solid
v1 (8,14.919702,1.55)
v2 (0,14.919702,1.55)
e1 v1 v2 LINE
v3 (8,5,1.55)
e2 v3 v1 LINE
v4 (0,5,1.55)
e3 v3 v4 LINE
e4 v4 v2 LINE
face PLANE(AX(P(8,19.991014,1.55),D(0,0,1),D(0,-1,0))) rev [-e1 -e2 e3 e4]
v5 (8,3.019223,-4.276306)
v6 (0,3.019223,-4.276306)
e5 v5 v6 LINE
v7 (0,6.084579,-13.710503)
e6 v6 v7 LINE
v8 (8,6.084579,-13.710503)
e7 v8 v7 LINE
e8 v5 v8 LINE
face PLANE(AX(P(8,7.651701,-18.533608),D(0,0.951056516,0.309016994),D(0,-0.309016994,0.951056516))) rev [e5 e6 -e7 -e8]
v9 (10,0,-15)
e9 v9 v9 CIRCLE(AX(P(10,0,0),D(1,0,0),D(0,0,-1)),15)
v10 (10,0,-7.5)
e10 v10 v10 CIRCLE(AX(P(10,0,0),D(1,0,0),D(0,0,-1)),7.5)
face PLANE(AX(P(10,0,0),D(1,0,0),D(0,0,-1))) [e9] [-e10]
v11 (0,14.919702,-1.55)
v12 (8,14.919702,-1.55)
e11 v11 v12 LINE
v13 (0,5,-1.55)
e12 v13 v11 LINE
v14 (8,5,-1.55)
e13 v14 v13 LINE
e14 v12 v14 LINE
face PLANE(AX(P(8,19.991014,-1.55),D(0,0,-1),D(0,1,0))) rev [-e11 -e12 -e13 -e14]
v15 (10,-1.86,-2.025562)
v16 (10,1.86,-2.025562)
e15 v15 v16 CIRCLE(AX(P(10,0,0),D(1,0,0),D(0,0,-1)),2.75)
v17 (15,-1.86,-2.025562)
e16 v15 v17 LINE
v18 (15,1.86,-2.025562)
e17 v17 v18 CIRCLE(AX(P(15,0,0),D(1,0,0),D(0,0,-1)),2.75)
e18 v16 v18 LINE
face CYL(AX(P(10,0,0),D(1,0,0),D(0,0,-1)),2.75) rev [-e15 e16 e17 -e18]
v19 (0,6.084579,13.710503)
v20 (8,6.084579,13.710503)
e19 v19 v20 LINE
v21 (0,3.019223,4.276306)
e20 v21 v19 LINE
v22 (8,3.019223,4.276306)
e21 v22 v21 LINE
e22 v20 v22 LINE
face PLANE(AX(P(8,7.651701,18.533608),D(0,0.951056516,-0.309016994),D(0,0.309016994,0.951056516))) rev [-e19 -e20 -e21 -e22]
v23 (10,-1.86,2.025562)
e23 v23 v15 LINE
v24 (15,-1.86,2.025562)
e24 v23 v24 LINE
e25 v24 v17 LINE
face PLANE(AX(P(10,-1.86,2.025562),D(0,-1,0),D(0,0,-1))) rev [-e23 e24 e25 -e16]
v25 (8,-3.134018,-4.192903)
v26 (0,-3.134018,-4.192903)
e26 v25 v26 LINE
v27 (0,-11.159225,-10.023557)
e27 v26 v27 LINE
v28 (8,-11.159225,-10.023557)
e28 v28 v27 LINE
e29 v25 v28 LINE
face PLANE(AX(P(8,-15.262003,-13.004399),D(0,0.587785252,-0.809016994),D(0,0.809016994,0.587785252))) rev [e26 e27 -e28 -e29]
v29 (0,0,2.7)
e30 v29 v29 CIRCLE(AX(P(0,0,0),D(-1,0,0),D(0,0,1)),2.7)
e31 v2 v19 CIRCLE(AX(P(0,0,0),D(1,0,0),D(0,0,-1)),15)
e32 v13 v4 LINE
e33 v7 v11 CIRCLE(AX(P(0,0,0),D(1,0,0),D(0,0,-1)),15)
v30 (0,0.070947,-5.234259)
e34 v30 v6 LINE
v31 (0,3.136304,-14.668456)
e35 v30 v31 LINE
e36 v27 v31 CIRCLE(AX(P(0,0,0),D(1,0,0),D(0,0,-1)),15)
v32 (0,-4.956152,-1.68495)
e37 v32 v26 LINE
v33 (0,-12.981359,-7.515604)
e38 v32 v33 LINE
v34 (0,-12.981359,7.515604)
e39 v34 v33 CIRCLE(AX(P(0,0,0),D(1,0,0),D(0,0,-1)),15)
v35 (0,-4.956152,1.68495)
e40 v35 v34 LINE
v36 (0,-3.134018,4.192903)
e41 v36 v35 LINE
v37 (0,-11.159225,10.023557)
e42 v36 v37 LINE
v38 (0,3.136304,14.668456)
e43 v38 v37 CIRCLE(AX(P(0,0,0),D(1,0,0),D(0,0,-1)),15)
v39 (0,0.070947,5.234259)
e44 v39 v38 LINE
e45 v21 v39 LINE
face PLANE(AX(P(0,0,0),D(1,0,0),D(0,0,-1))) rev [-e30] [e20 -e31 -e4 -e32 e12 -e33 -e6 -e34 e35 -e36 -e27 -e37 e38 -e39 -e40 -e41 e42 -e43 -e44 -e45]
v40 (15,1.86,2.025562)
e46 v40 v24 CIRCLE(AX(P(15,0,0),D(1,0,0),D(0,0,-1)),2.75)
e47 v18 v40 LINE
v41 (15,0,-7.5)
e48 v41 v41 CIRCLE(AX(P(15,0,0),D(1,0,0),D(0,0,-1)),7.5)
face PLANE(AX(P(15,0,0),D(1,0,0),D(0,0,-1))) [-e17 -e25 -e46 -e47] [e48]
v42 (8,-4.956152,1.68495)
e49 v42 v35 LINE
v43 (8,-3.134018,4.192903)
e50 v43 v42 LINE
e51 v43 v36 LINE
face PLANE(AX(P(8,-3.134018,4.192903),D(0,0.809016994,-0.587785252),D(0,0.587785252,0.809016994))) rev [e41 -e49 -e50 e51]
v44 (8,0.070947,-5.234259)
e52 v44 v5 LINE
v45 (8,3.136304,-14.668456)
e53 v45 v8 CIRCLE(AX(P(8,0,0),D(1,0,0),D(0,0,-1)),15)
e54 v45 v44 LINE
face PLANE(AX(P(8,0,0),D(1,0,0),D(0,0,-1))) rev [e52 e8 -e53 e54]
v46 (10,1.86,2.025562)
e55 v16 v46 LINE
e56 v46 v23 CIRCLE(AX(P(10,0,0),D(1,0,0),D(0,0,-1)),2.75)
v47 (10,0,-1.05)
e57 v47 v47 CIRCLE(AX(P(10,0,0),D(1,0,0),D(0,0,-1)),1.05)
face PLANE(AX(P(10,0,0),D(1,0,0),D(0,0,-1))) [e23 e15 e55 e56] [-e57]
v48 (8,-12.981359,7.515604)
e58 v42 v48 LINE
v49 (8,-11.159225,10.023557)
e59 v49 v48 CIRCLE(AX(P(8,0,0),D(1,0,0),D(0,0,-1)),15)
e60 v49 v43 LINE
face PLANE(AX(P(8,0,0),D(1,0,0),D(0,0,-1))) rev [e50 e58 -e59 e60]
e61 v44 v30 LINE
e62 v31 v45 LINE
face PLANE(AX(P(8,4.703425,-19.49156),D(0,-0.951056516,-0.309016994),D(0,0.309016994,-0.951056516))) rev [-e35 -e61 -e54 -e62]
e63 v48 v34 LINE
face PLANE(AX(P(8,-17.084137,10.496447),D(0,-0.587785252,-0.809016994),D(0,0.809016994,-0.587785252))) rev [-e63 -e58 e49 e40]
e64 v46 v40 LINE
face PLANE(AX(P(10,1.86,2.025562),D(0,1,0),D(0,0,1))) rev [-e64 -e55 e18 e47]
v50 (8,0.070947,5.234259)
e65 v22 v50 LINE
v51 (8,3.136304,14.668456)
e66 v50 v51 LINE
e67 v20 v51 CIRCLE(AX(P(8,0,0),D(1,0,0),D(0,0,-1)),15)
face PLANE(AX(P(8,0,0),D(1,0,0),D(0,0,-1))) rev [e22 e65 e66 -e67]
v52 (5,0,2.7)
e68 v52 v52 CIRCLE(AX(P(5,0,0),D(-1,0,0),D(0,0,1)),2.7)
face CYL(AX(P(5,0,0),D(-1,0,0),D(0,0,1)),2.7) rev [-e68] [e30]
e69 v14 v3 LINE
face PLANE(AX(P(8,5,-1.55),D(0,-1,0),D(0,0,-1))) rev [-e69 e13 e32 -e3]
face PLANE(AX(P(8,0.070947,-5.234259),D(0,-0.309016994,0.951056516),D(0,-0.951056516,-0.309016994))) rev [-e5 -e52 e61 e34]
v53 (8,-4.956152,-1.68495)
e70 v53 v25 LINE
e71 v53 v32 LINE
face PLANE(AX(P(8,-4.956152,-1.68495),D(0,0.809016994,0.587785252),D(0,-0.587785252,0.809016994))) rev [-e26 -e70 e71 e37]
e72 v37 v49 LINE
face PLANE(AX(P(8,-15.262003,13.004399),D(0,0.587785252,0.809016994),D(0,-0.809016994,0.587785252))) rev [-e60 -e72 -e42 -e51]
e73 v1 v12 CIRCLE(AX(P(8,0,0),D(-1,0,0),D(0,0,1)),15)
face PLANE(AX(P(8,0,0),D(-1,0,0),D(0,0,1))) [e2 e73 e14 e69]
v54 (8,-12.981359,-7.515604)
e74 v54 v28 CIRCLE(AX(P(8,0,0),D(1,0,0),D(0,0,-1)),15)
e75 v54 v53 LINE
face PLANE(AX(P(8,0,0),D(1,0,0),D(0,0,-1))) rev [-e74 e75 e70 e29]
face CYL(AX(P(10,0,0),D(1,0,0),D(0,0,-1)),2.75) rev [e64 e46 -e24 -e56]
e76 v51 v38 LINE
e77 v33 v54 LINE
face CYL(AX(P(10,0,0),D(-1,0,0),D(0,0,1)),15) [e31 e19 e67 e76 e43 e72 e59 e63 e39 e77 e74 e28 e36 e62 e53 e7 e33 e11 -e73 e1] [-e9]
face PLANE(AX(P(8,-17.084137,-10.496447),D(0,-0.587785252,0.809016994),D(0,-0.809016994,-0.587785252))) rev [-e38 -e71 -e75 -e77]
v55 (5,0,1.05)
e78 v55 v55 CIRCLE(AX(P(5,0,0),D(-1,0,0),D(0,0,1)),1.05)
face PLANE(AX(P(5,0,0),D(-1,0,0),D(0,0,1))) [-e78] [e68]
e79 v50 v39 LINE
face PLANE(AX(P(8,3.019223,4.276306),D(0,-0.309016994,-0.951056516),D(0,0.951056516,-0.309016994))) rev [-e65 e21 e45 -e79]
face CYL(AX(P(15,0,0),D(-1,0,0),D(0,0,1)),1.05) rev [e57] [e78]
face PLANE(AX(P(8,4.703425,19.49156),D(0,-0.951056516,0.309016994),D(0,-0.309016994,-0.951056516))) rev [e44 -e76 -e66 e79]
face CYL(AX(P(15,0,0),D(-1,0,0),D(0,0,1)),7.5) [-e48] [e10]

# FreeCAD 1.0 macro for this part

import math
import FreeCAD as App
import Part
import Sketcher

V = App.Vector
Q = App.Units.Quantity


def add_polygon(sketch, points):
    """Adds a closed chain of lines whose ends are joined by coincident constraints."""
    first, n = sketch.GeometryCount, len(points)
    for a, b in zip(points, points[1:] + points[:1]):
        sketch.addGeometry(Part.LineSegment(App.Vector(*a, 0), App.Vector(*b, 0)), False)
    for i in range(n):
        sketch.addConstraint(Sketcher.Constraint("Coincident", first + i, 2, first + (i + 1) % n, 1))

doc = App.newDocument("Part")
params = doc.addObject("Spreadsheet::Sheet", "Params")
for row, (alias, value) in enumerate([
    ("sketch1_diameter", "30 mm"),
    ("pad1_length", "10 mm"),
    ("sketch2_diameter", "15 mm"),
    ("pad2_length", "5 mm"),
    ("sketch3_radius", "2.75 mm"),
    ("pocket1_length", "5 mm"),
    ("sketch4_diameter", "5.4 mm"),
    ("pocket2_length", "5 mm"),
    ("sketch5_diameter", "2.1 mm"),
    ("sketch6_height", "3.1 mm"),
    ("sketch6_length", "3.1 mm"),
    ("pocket4_length", "8 mm"),
], start=1):
    params.set(f"A{row}", alias)
    params.set(f"B{row}", "=" + value)
    params.setAlias(f"B{row}", alias)

body = doc.addObject("PartDesign::Body", "Body")

# Sketch on YZ plane
sketch1 = body.newObject("Sketcher::SketchObject", "Sketch")
sketch1.AttachmentSupport = (doc.getObject("YZ_Plane"), [""])
sketch1.MapMode = "FlatFace"
sketch1.addGeometry(Part.Circle(V(0, 0, 0), V(0, 0, 1), 15), False)
sketch1.addConstraint(Sketcher.Constraint("Coincident", 0, 3, -1, 1))
sketch1.addConstraint(Sketcher.Constraint("Diameter", 0, Q("30 mm")))
sketch1.setExpression("Constraints[1]", "Params.sketch1_diameter")
pad1 = body.newObject("PartDesign::Pad", "Pad")
pad1.Profile = sketch1
pad1.setExpression("Length", "Params.pad1_length")

# Sketch on YZ plane
sketch2 = body.newObject("Sketcher::SketchObject", "Sketch001")
sketch2.AttachmentSupport = (doc.getObject("YZ_Plane"), [""])
sketch2.MapMode = "FlatFace"
sketch2.AttachmentOffset = App.Placement(V(0, 0, 10), App.Rotation())
sketch2.addGeometry(Part.Circle(V(0, 0, 0), V(0, 0, 1), 8), False)
sketch2.addConstraint(Sketcher.Constraint("Coincident", 0, 3, -1, 1))
sketch2.addConstraint(Sketcher.Constraint("Diameter", 0, Q("15 mm")))
sketch2.setExpression("Constraints[1]", "Params.sketch2_diameter")
pad2 = body.newObject("PartDesign::Pad", "Pad001")
pad2.Profile = sketch2
pad2.setExpression("Length", "Params.pad2_length")

# Sketch on YZ plane
sketch3 = body.newObject("Sketcher::SketchObject", "Sketch002")
sketch3.AttachmentSupport = (doc.getObject("YZ_Plane"), [""])
sketch3.MapMode = "FlatFace"
sketch3.AttachmentOffset = App.Placement(V(0, 0, 15), App.Rotation())
sketch3.addGeometry(Part.LineSegment(V(1.9, -2, 0), V(1.9, 2, 0)), False)
sketch3.addGeometry(Part.ArcOfCircle(Part.Circle(V(0, 0, 0), V(0, 0, 1), 2.8), math.radians(47), math.radians(133)), False)
sketch3.addGeometry(Part.LineSegment(V(-1.9, 2, 0), V(-1.9, -2, 0)), False)
sketch3.addGeometry(Part.ArcOfCircle(Part.Circle(V(0, 0, 0), V(0, 0, 1), 2.8), math.radians(-133), math.radians(-47)), False)
sketch3.addConstraint(Sketcher.Constraint("Coincident", 0, 2, 1, 1))
sketch3.addConstraint(Sketcher.Constraint("Coincident", 1, 2, 2, 1))
sketch3.addConstraint(Sketcher.Constraint("Coincident", 2, 2, 3, 1))
sketch3.addConstraint(Sketcher.Constraint("Coincident", 3, 2, 0, 1))
sketch3.addConstraint(Sketcher.Constraint("Vertical", 0))
sketch3.addConstraint(Sketcher.Constraint("Vertical", 2))
sketch3.addConstraint(Sketcher.Constraint("Coincident", 1, 3, -1, 1))
sketch3.addConstraint(Sketcher.Constraint("Coincident", 3, 3, -1, 1))
sketch3.addConstraint(Sketcher.Constraint("Equal", 1, 3))
sketch3.addConstraint(Sketcher.Constraint("Horizontal", 0, 2, 1, 2))
sketch3.addConstraint(Sketcher.Constraint("Radius", 1, Q("2.75 mm")))
sketch3.addConstraint(Sketcher.Constraint("DistanceX", -1, 1, 0, 2, Q("1.86 mm")))
sketch3.setExpression("Constraints[10]", "Params.sketch3_radius")
pocket1 = body.newObject("PartDesign::Pocket", "Pocket")
pocket1.Profile = sketch3
pocket1.setExpression("Length", "Params.pocket1_length")

# Sketch on YZ plane
sketch4 = body.newObject("Sketcher::SketchObject", "Sketch003")
sketch4.AttachmentSupport = (doc.getObject("YZ_Plane"), [""])
sketch4.MapMode = "FlatFace"
sketch4.addGeometry(Part.Circle(V(0, 0, 0), V(0, 0, 1), 2.7), False)
sketch4.addConstraint(Sketcher.Constraint("Coincident", 0, 3, -1, 1))
sketch4.addConstraint(Sketcher.Constraint("Diameter", 0, Q("5.4 mm")))
sketch4.setExpression("Constraints[1]", "Params.sketch4_diameter")
pocket2 = body.newObject("PartDesign::Pocket", "Pocket001")
pocket2.Profile = sketch4
pocket2.setExpression("Length", "Params.pocket2_length")
pocket2.Reversed = True

# Sketch on YZ plane
sketch5 = body.newObject("Sketcher::SketchObject", "Sketch004")
sketch5.AttachmentSupport = (doc.getObject("YZ_Plane"), [""])
sketch5.MapMode = "FlatFace"
sketch5.AttachmentOffset = App.Placement(V(0, 0, 5), App.Rotation())
sketch5.addGeometry(Part.Circle(V(0, 0, 0), V(0, 0, 1), 1.1), False)
sketch5.addConstraint(Sketcher.Constraint("Coincident", 0, 3, -1, 1))
sketch5.addConstraint(Sketcher.Constraint("Diameter", 0, Q("2.1 mm")))
sketch5.setExpression("Constraints[1]", "Params.sketch5_diameter")
pocket3 = body.newObject("PartDesign::Pocket", "Pocket002")
pocket3.Profile = sketch5
pocket3.Type = "ThroughAll"
pocket3.Reversed = True

# Sketch on YZ plane
sketch6 = body.newObject("Sketcher::SketchObject", "Sketch005")
sketch6.AttachmentSupport = (doc.getObject("YZ_Plane"), [""])
sketch6.MapMode = "FlatFace"
add_polygon(sketch6, [(4.7, 19.5), (7.7, 18.5), (3, 4.3), (0.1, 5.2)])  # lines 0-3
add_polygon(sketch6, [(20, -1.6), (5, -1.6), (5, 1.6), (20, 1.6)])  # lines 4-7
add_polygon(sketch6, [(-17.1, 10.5), (-15.3, 13), (-3.1, 4.2), (-5, 1.7)])  # lines 8-11
add_polygon(sketch6, [(-15.3, -13), (-17.1, -10.5), (-5, -1.7), (-3.1, -4.2)])  # lines 12-15
add_polygon(sketch6, [(7.7, -18.5), (4.7, -19.5), (0.1, -5.2), (3, -4.3)])  # lines 16-19
sketch6.addConstraint(Sketcher.Constraint("Horizontal", 4))
sketch6.addConstraint(Sketcher.Constraint("Vertical", 5))
sketch6.addConstraint(Sketcher.Constraint("Horizontal", 6))
sketch6.addConstraint(Sketcher.Constraint("Vertical", 7))
sketch6.addConstraint(Sketcher.Constraint("Symmetric", 11, 2, 12, 2, -1))
sketch6.addConstraint(Sketcher.Constraint("Symmetric", 10, 2, 13, 2, -1))
sketch6.addConstraint(Sketcher.Constraint("Symmetric", 9, 2, 14, 2, -1))
sketch6.addConstraint(Sketcher.Constraint("Symmetric", 8, 2, 15, 2, -1))
sketch6.addConstraint(Sketcher.Constraint("Symmetric", 3, 2, 16, 2, -1))
sketch6.addConstraint(Sketcher.Constraint("Symmetric", 2, 2, 17, 2, -1))
sketch6.addConstraint(Sketcher.Constraint("Symmetric", 1, 2, 18, 2, -1))
sketch6.addConstraint(Sketcher.Constraint("Symmetric", 0, 2, 19, 2, -1))
sketch6.addConstraint(Sketcher.Constraint("Perpendicular", 0, 1))
sketch6.addConstraint(Sketcher.Constraint("Perpendicular", 1, 2))
sketch6.addConstraint(Sketcher.Constraint("Perpendicular", 2, 3))
sketch6.addConstraint(Sketcher.Constraint("Perpendicular", 8, 9))
sketch6.addConstraint(Sketcher.Constraint("Perpendicular", 9, 10))
sketch6.addConstraint(Sketcher.Constraint("Perpendicular", 10, 11))
sketch6.addConstraint(Sketcher.Constraint("Equal", 2, 8))
sketch6.addConstraint(Sketcher.Constraint("Equal", 3, 9))
sketch6.addConstraint(Sketcher.Constraint("Angle", 0, Q("-18 deg")))
sketch6.addConstraint(Sketcher.Constraint("Angle", 8, Q("54 deg")))
sketch6.addConstraint(Sketcher.Constraint("DistanceY", 5, 1, 5, 2, Q("3.1 mm")))
sketch6.addConstraint(Sketcher.Constraint("DistanceX", -1, 1, 4, 2, Q("5 mm")))
sketch6.addConstraint(Sketcher.Constraint("Distance", 0, Q("3.1 mm")))
sketch6.addConstraint(Sketcher.Constraint("DistanceY", 4, 2, -1, 1, Q("1.55 mm")))
sketch6.addConstraint(Sketcher.Constraint("DistanceX", -1, 1, 0, 2, Q("7.651701 mm")))
sketch6.addConstraint(Sketcher.Constraint("DistanceY", -1, 1, 8, 2, Q("13.004399 mm")))
sketch6.addConstraint(Sketcher.Constraint("DistanceY", 1, 2, 0, 2, Q("14.257301 mm")))
sketch6.addConstraint(Sketcher.Constraint("DistanceX", 10, 2, 2, 2, Q("5.027099 mm")))
sketch6.addConstraint(Sketcher.Constraint("DistanceX", 4, 2, 4, 1, Q("14.991014 mm")))
sketch6.addConstraint(Sketcher.Constraint("DistanceY", -1, 1, 2, 2, Q("5.234259 mm")))
sketch6.setExpression("Constraints[42]", "Params.sketch6_height")
sketch6.setExpression("Constraints[44]", "Params.sketch6_length")
pocket4 = body.newObject("PartDesign::Pocket", "Pocket003")
pocket4.Profile = sketch6
pocket4.setExpression("Length", "Params.pocket4_length")
pocket4.Reversed = True

doc.recompute()
